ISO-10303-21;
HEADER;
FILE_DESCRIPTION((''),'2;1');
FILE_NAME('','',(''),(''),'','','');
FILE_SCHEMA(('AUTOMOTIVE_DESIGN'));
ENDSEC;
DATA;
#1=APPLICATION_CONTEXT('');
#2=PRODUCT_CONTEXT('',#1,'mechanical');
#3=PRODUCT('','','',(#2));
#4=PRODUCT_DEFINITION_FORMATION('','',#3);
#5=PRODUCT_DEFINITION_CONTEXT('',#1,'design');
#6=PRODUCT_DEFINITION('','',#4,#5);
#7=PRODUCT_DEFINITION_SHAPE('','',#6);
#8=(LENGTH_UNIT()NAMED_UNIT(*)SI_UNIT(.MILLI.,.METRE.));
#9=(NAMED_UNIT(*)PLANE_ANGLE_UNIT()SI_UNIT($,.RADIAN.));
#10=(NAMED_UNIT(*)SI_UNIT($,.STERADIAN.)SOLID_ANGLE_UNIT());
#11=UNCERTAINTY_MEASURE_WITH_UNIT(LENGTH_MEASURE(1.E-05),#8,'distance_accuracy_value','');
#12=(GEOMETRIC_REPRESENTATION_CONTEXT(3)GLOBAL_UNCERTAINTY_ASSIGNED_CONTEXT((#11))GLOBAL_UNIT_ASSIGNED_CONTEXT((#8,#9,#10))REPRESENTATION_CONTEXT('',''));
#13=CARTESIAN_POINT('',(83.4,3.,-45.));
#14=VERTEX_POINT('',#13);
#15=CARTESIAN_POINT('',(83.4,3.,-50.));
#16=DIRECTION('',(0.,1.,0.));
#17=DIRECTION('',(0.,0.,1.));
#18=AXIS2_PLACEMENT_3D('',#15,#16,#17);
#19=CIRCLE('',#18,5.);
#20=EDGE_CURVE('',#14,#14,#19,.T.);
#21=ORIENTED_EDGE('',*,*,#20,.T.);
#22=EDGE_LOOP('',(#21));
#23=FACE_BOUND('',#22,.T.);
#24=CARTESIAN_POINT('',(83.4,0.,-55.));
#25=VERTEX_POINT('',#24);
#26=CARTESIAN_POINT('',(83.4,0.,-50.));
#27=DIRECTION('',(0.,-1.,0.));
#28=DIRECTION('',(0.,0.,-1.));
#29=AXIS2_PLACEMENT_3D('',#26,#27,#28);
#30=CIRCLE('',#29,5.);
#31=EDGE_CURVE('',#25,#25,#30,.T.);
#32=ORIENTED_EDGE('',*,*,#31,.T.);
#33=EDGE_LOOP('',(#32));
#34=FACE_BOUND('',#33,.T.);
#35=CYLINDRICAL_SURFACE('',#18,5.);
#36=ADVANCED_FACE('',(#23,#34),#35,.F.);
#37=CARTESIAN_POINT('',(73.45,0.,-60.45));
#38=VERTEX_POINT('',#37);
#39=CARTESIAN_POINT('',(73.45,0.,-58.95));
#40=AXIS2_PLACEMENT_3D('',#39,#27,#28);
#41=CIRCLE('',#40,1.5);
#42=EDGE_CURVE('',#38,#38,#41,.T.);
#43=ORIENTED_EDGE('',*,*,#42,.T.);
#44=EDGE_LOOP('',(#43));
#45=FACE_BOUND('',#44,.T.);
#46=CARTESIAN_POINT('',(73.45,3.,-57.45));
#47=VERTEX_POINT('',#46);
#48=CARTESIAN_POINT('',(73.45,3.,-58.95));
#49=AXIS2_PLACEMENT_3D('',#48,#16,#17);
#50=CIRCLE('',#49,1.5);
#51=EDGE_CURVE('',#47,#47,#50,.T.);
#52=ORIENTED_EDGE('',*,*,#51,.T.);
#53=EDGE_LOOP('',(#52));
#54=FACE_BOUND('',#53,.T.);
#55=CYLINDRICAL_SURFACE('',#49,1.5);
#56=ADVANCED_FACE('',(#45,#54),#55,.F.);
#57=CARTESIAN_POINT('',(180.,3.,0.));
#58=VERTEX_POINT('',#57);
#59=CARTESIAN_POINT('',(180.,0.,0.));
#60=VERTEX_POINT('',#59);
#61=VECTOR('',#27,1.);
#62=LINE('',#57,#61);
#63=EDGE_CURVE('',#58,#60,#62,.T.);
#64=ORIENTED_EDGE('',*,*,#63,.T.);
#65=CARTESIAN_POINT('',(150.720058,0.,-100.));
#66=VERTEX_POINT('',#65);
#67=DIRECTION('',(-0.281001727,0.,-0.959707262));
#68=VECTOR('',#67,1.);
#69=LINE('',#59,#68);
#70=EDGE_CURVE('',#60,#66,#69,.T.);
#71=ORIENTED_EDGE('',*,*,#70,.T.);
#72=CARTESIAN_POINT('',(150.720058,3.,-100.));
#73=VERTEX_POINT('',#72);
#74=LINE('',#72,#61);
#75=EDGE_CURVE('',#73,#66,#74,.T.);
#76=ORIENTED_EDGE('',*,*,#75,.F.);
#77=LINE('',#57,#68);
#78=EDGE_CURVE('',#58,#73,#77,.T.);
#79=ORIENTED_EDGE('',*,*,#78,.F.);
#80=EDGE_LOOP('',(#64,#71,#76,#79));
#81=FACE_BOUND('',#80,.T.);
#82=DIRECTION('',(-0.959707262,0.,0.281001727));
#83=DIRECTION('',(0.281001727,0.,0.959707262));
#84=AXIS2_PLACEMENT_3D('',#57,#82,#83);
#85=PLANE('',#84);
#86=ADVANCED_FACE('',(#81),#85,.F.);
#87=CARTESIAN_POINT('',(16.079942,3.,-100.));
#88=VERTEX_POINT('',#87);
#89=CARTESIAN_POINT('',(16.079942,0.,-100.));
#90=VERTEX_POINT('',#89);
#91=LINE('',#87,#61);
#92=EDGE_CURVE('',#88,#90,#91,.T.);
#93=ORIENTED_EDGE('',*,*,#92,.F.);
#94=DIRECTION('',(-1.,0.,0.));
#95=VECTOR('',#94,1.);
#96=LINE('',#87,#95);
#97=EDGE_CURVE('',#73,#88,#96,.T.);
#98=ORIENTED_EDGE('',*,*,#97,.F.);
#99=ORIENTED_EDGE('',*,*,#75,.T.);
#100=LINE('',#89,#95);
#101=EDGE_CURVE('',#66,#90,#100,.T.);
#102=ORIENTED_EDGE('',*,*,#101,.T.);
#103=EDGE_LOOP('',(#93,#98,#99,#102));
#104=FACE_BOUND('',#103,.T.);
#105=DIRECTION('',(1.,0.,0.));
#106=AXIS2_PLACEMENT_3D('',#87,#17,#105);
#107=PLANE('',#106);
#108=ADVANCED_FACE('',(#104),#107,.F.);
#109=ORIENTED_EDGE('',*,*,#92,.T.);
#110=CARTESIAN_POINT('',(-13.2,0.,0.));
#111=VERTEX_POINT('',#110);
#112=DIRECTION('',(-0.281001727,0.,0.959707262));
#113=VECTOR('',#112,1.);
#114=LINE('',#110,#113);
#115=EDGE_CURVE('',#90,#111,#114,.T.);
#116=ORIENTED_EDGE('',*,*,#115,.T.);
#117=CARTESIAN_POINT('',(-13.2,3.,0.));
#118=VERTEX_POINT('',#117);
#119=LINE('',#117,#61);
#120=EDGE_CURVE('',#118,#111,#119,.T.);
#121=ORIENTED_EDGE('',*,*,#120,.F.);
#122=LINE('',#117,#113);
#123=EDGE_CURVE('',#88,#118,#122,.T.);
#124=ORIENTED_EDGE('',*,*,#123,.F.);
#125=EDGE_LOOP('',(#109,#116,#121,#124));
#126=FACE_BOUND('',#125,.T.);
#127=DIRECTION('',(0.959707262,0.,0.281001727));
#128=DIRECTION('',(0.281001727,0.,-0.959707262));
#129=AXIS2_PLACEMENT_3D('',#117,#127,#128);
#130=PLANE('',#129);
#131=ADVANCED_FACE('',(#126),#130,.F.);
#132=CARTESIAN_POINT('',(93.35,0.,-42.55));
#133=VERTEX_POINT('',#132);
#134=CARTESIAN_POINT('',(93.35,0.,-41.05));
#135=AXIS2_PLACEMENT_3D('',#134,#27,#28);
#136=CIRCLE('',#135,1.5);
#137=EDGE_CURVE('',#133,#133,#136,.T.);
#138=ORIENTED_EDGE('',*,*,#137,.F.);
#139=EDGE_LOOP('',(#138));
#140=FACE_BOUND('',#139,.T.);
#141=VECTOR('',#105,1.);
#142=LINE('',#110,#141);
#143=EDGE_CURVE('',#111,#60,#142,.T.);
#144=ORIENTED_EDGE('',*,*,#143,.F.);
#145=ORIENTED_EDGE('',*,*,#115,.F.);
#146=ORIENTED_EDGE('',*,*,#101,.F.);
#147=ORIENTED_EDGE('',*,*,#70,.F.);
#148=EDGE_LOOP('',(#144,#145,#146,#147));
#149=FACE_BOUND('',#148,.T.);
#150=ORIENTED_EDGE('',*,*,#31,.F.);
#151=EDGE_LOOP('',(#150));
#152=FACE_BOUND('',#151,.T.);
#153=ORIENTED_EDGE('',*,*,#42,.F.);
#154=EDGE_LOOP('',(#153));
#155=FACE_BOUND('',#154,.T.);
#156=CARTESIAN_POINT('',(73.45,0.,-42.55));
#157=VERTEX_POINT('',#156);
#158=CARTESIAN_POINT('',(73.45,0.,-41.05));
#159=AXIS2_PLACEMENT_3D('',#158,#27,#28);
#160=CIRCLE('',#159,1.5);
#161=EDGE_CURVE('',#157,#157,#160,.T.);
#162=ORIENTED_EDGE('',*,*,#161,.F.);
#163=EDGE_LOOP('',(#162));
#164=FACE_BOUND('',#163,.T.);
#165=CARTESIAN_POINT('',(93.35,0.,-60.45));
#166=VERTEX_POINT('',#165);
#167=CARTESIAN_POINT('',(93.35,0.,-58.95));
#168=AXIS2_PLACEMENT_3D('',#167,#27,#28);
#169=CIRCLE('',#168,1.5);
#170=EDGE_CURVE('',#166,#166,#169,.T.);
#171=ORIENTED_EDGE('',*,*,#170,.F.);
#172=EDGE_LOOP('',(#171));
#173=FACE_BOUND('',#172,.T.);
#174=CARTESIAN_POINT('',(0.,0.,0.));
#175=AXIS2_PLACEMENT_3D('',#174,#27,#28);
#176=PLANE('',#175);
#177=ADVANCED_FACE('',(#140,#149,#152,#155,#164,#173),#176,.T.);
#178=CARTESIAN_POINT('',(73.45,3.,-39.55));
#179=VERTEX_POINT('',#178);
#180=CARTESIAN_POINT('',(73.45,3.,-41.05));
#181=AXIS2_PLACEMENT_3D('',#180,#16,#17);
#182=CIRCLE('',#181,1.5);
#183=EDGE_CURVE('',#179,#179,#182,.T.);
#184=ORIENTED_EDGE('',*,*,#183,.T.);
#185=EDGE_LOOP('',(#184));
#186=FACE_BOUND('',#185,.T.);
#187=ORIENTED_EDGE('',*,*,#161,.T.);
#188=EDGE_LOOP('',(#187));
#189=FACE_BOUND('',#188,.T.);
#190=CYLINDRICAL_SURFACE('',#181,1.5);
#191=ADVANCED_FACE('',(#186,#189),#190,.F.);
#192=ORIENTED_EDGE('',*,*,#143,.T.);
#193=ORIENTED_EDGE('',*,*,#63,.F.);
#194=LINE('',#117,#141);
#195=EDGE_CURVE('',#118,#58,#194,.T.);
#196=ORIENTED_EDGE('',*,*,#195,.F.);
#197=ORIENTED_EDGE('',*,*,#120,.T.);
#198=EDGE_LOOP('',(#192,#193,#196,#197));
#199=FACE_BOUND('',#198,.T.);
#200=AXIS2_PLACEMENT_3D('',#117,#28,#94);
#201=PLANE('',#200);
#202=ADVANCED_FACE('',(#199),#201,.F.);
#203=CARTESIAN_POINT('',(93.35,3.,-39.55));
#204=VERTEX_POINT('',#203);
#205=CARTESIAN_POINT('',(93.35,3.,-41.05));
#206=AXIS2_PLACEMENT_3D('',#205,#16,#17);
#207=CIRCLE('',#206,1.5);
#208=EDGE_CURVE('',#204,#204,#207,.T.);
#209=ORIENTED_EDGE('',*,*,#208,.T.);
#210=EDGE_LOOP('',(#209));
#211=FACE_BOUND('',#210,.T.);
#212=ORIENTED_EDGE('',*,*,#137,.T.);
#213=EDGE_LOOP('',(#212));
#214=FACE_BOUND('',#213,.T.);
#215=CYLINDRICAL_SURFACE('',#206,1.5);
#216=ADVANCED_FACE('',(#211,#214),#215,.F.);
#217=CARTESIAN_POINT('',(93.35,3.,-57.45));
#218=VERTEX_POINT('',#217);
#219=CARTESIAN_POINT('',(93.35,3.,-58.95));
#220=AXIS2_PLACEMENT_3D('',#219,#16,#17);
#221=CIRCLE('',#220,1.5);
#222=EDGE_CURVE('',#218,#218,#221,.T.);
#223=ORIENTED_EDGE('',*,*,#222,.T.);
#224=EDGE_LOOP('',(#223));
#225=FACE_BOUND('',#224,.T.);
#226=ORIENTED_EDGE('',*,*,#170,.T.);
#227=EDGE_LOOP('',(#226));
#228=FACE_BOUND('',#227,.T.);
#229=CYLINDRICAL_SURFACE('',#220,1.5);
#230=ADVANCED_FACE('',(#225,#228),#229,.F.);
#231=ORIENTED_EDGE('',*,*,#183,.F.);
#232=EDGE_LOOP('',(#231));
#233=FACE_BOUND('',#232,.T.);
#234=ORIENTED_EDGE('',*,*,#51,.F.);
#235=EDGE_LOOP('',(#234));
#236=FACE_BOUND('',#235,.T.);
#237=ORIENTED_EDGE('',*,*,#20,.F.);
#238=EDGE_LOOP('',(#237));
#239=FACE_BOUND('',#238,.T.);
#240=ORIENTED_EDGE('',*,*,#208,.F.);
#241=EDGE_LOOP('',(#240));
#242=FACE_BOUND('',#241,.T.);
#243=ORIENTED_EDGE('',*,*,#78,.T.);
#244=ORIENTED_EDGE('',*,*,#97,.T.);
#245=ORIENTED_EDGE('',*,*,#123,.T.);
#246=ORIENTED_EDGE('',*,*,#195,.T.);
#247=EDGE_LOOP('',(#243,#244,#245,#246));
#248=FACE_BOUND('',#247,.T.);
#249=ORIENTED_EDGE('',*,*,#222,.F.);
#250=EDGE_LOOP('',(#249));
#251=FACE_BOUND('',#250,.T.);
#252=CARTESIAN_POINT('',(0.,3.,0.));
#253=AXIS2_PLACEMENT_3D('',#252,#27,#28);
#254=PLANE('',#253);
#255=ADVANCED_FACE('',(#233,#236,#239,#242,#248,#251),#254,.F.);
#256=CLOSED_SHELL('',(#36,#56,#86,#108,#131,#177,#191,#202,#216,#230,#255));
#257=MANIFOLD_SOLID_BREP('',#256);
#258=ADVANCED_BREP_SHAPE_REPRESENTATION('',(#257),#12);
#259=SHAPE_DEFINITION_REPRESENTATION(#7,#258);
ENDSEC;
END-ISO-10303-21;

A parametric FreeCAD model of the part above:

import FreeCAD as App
import Part
import Sketcher

V = App.Vector
Q = App.Units.Quantity

doc = App.newDocument("Part")
params = doc.addObject("Spreadsheet::Sheet", "Params")
for row, (alias, value) in enumerate([
    ("sketch1_width", "193.2 mm"),
    ("pad1_length", "3 mm"),
    ("sketch2_diameter", "10 mm"),
    ("hole_diameter", "10 mm"),
    ("hole_depth", "3 mm"),
    ("sketch3_diameter", "3 mm"),
    ("hole2_diameter", "3 mm"),
    ("hole2_depth", "3 mm"),
], start=1):
    params.set(f"A{row}", alias)
    params.set(f"B{row}", "=" + value)
    params.setAlias(f"B{row}", alias)

body = doc.addObject("PartDesign::Body", "Body")

# Sketch on XZ plane
sketch1 = doc.addObject("Sketcher::SketchObject", "Sketch")
body.addObject(sketch1)
sketch1.AttachmentSupport = (doc.XZ_Plane, [""])
sketch1.MapMode = "FlatFace"
sketch1.addGeometry(Part.LineSegment(V(-13, 0, 0), V(180, 0, 0)), False)
sketch1.addGeometry(Part.LineSegment(V(180, 0, 0), V(151, -100, 0)), False)
sketch1.addGeometry(Part.LineSegment(V(151, -100, 0), V(16, -100, 0)), False)
sketch1.addGeometry(Part.LineSegment(V(16, -100, 0), V(-13, 0, 0)), False)
sketch1.addConstraint(Sketcher.Constraint("Coincident", 0, 2, 1, 1))
sketch1.addConstraint(Sketcher.Constraint("Coincident", 1, 2, 2, 1))
sketch1.addConstraint(Sketcher.Constraint("Coincident", 2, 2, 3, 1))
sketch1.addConstraint(Sketcher.Constraint("Coincident", 3, 2, 0, 1))
sketch1.addConstraint(Sketcher.Constraint("Horizontal", 0))
sketch1.addConstraint(Sketcher.Constraint("Horizontal", 2))
sketch1.addConstraint(Sketcher.Constraint("PointOnObject", 0, 2, -1))
sketch1.addConstraint(Sketcher.Constraint("Equal", 1, 3))
sketch1.addConstraint(Sketcher.Constraint("DistanceX", 0, 1, 0, 2, Q("193.2 mm")))
sketch1.addConstraint(Sketcher.Constraint("DistanceX", -1, 1, 0, 2, Q("180 mm")))
sketch1.addConstraint(Sketcher.Constraint("DistanceY", 1, 2, -1, 1, Q("100 mm")))
sketch1.addConstraint(Sketcher.Constraint("Angle", 1, Q("-106.32 deg")))
sketch1.setExpression("Constraints[8]", "Params.sketch1_width")
pad1 = doc.addObject("PartDesign::Pad", "Pad")
body.addObject(pad1)
pad1.Profile = sketch1
pad1.setExpression("Length", "Params.pad1_length")
pad1.Reversed = True

# Sketch on XZ plane
sketch2 = doc.addObject("Sketcher::SketchObject", "Sketch001")
body.addObject(sketch2)
sketch2.AttachmentSupport = (doc.XZ_Plane, [""])
sketch2.MapMode = "FlatFace"
sketch2.AttachmentOffset = App.Placement(V(0, 0, -3), App.Rotation())
sketch2.addGeometry(Part.Circle(V(83, -50, 0), V(0, 0, 1), 5), False)
sketch2.addConstraint(Sketcher.Constraint("Diameter", 0, Q("10 mm")))
sketch2.addConstraint(Sketcher.Constraint("DistanceY", 0, 3, -1, 1, Q("50 mm")))
sketch2.addConstraint(Sketcher.Constraint("DistanceX", -1, 1, 0, 3, Q("83.4 mm")))
sketch2.setExpression("Constraints[0]", "Params.sketch2_diameter")
doc.recompute()
hole = doc.addObject("PartDesign::Hole", "Hole")
body.addObject(hole)
hole.Profile = sketch2
hole.ThreadType = "None"
hole.setExpression("Diameter", "Params.hole_diameter")
hole.DepthType = "Dimension"
hole.setExpression("Depth", "Params.hole_depth")
hole.DrillPoint = "Flat"
hole.Reversed = True

# Sketch on XZ plane
sketch3 = doc.addObject("Sketcher::SketchObject", "Sketch002")
body.addObject(sketch3)
sketch3.AttachmentSupport = (doc.XZ_Plane, [""])
sketch3.MapMode = "FlatFace"
sketch3.AttachmentOffset = App.Placement(V(0, 0, -3), App.Rotation())
sketch3.addGeometry(Part.Circle(V(73.5, -59, 0), V(0, 0, 1), 1.5), False)
sketch3.addGeometry(Part.Circle(V(73.5, -41, 0), V(0, 0, 1), 1.5), False)
sketch3.addGeometry(Part.Circle(V(93.3, -41, 0), V(0, 0, 1), 1.5), False)
sketch3.addGeometry(Part.Circle(V(93.3, -59, 0), V(0, 0, 1), 1.5), False)
sketch3.addConstraint(Sketcher.Constraint("Equal", 0, 1))
sketch3.addConstraint(Sketcher.Constraint("Equal", 1, 2))
sketch3.addConstraint(Sketcher.Constraint("Equal", 2, 3))
sketch3.addConstraint(Sketcher.Constraint("Horizontal", 1, 3, 2, 3))
sketch3.addConstraint(Sketcher.Constraint("Horizontal", 0, 3, 3, 3))
sketch3.addConstraint(Sketcher.Constraint("Vertical", 0, 3, 1, 3))
sketch3.addConstraint(Sketcher.Constraint("Vertical", 2, 3, 3, 3))
sketch3.addConstraint(Sketcher.Constraint("Diameter", 0, Q("3 mm")))
sketch3.addConstraint(Sketcher.Constraint("DistanceY", 0, 3, 1, 3, Q("17.9 mm")))
sketch3.addConstraint(Sketcher.Constraint("DistanceX", 1, 3, 2, 3, Q("19.9 mm")))
sketch3.addConstraint(Sketcher.Constraint("DistanceX", -1, 1, 0, 3, Q("73.45 mm")))
sketch3.addConstraint(Sketcher.Constraint("DistanceY", 0, 3, -1, 1, Q("58.95 mm")))
sketch3.setExpression("Constraints[7]", "Params.sketch3_diameter")
doc.recompute()
hole2 = doc.addObject("PartDesign::Hole", "Hole001")
body.addObject(hole2)
hole2.Profile = sketch3
hole2.ThreadType = "None"
hole2.setExpression("Diameter", "Params.hole2_diameter")
hole2.DepthType = "Dimension"
hole2.setExpression("Depth", "Params.hole2_depth")
hole2.DrillPoint = "Flat"
hole2.Reversed = True

doc.recompute()
